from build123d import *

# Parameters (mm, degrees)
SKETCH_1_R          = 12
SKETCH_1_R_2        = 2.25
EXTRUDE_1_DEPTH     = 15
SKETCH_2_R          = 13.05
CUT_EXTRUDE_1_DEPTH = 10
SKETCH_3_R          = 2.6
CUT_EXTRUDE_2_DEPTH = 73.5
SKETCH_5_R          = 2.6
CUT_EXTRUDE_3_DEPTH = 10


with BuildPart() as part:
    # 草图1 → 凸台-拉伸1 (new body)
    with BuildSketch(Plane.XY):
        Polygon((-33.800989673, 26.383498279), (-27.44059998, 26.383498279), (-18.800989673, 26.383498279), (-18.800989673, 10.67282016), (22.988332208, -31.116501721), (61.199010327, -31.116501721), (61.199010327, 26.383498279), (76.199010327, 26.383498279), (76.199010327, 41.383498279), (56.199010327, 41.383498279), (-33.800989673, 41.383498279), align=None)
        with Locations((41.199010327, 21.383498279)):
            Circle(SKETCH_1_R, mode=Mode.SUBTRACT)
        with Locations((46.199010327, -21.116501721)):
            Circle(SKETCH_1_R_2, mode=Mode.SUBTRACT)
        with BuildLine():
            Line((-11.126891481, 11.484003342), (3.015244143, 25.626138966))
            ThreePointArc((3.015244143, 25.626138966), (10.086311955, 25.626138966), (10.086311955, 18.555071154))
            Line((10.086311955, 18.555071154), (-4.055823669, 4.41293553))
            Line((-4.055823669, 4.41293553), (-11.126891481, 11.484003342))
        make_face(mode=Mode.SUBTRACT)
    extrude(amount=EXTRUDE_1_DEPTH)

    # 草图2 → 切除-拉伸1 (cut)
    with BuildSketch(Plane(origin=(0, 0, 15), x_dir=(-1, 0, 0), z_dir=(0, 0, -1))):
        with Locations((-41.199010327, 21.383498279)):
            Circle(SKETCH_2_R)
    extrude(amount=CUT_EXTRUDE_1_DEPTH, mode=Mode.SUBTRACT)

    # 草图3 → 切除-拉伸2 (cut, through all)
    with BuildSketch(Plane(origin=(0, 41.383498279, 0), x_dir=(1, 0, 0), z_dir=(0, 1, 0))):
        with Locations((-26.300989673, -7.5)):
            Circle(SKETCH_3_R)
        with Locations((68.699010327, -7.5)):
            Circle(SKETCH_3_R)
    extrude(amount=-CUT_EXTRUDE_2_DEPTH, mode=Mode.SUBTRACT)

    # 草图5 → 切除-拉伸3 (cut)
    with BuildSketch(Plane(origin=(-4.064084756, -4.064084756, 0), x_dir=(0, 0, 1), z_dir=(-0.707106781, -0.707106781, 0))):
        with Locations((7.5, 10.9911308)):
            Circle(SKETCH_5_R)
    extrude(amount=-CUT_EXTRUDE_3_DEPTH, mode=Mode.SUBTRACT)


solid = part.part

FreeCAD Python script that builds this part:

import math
import FreeCAD as App
import Part
import Sketcher
from FreeCAD import Vector
Q = App.Units.Quantity


def add_polygon(sketch, points):
    """Adds a closed chain of lines whose ends are joined by coincident constraints."""
    first, n = sketch.GeometryCount, len(points)
    for a, b in zip(points, points[1:] + points[:1]):
        sketch.addGeometry(Part.LineSegment(App.Vector(*a, 0), App.Vector(*b, 0)), False)
    for i in range(n):
        sketch.addConstraint(Sketcher.Constraint("Coincident", first + i, 2, first + (i + 1) % n, 1))

doc = App.newDocument("Part")
body = doc.addObject("PartDesign::Body", "Body")

# Sketch on XY plane
sketch1 = doc.addObject("Sketcher::SketchObject", "Sketch")
body.addObject(sketch1)
sketch1.AttachmentSupport = (doc.XY_Plane, [""])
sketch1.MapMode = "FlatFace"
add_polygon(sketch1, [(-33.80099, 26.383498), (-18.80099, 26.383498), (-18.80099, 10.67282), (22.988332, -31.116502), (61.19901, -31.116502), (61.19901, 26.383498), (76.19901, 26.383498), (76.19901, 41.383498), (-33.80099, 41.383498)])  # lines 0-8
sketch1.addGeometry(Part.Circle(Vector(46.19901, -21.116502, 0), Vector(0, 0, 1), 2.25), False)  # 9
sketch1.addGeometry(Part.LineSegment(Vector(-4.055824, 4.412936, 0), Vector(-11.126891, 11.484003, 0)), False)  # 10
sketch1.addGeometry(Part.LineSegment(Vector(-11.126891, 11.484003, 0), Vector(3.015244, 25.626139, 0)), False)  # 11
sketch1.addGeometry(Part.ArcOfCircle(Part.Circle(Vector(6.550778, 22.090605, 0), Vector(0, 0, 1), 5), math.radians(-45), math.radians(135)), False)  # 12
sketch1.addGeometry(Part.LineSegment(Vector(10.086312, 18.555071, 0), Vector(-4.055824, 4.412936, 0)), False)  # 13
sketch1.addGeometry(Part.Circle(Vector(41.19901, 21.383498, 0), Vector(0, 0, 1), 12), False)  # 14
sketch1.addConstraint(Sketcher.Constraint("Coincident", 10, 2, 11, 1))
sketch1.addConstraint(Sketcher.Constraint("Tangent", 11, 2, 12, 2))
sketch1.addConstraint(Sketcher.Constraint("Tangent", 12, 1, 13, 1))
sketch1.addConstraint(Sketcher.Constraint("Coincident", 13, 2, 10, 1))
sketch1.addConstraint(Sketcher.Constraint("Horizontal", 0))
sketch1.addConstraint(Sketcher.Constraint("Vertical", 1))
sketch1.addConstraint(Sketcher.Constraint("Horizontal", 3))
sketch1.addConstraint(Sketcher.Constraint("Vertical", 4))
sketch1.addConstraint(Sketcher.Constraint("Horizontal", 5))
sketch1.addConstraint(Sketcher.Constraint("Vertical", 6))
sketch1.addConstraint(Sketcher.Constraint("Horizontal", 7))
sketch1.addConstraint(Sketcher.Constraint("Vertical", 8))
sketch1.addConstraint(Sketcher.Constraint("Parallel", 2, 10))
sketch1.addConstraint(Sketcher.Constraint("Perpendicular", 10, 11))
sketch1.addConstraint(Sketcher.Constraint("Parallel", 11, 13))
sketch1.addConstraint(Sketcher.Constraint("Horizontal", 0, 2, 4, 2))
sketch1.addConstraint(Sketcher.Constraint("Equal", 0, 5))
sketch1.addConstraint(Sketcher.Constraint("Equal", 5, 6))
sketch1.addConstraint(Sketcher.Constraint("Diameter", 14, 24.0))
sketch1.addConstraint(Sketcher.Constraint("Radius", 12, 5.0))
sketch1.addConstraint(Sketcher.Constraint("Diameter", 9, 4.5))
sketch1.addConstraint(Sketcher.Constraint("DistanceX", 0, 1, 0, 2, 15.0))
sketch1.addConstraint(Sketcher.Constraint("DistanceX", 7, 2, 7, 1, 110.0))
sketch1.addConstraint(Sketcher.Constraint("Angle", 2, Q("-45 deg")))
sketch1.addConstraint(Sketcher.Constraint("Distance", 11, 20.0))
sketch1.addConstraint(Sketcher.Constraint("DistanceY", 4, 1, 4, 2, 57.5))
sketch1.addConstraint(Sketcher.Constraint("DistanceX", 14, 3, 9, 3, 5.0))
sketch1.addConstraint(Sketcher.Constraint("DistanceX", 0, 2, 14, 3, 60.0))
sketch1.addConstraint(Sketcher.Constraint("DistanceY", 14, 3, 0, 2, 5.0))
sketch1.addConstraint(Sketcher.Constraint("DistanceY", 2, 2, 9, 3, 10.0))
sketch1.addConstraint(Sketcher.Constraint("DistanceX", 3, 1, 3, 2, 38.210678))
sketch1.addConstraint(Sketcher.Constraint("DistanceY", 9, 3, -1, 1, 21.116502))
sketch1.addConstraint(Sketcher.Constraint("DistanceX", 1, 2, 10, 2, 7.674098))
sketch1.addConstraint(Sketcher.Constraint("DistanceX", -1, 1, 9, 3, 46.19901))
sketch1.addConstraint(Sketcher.Constraint("DistanceY", -1, 1, 11, 2, 25.626139))
pad1 = doc.addObject("PartDesign::Pad", "Pad")
body.addObject(pad1)
pad1.Profile = sketch1
pad1.Length = 15

# Sketch on XY plane
sketch2 = doc.addObject("Sketcher::SketchObject", "Sketch001")
body.addObject(sketch2)
sketch2.AttachmentSupport = (doc.XY_Plane, [""])
sketch2.MapMode = "FlatFace"
sketch2.AttachmentOffset = App.Placement(Vector(0, 0, 15), App.Rotation())
sketch2.addGeometry(Part.Circle(Vector(41.19901, 21.383498, 0), Vector(0, 0, 1), 13.05), False)
sketch2.addConstraint(Sketcher.Constraint("Diameter", 0, 26.1))
sketch2.addConstraint(Sketcher.Constraint("DistanceY", -1, 1, 0, 3, 21.383498))
sketch2.addConstraint(Sketcher.Constraint("DistanceX", -1, 1, 0, 3, 41.19901))
pocket1 = doc.addObject("PartDesign::Pocket", "Pocket")
body.addObject(pocket1)
pocket1.Profile = sketch2
pocket1.Length = 10

# Sketch on XZ plane
sketch3 = doc.addObject("Sketcher::SketchObject", "Sketch002")
body.addObject(sketch3)
sketch3.AttachmentSupport = (doc.XZ_Plane, [""])
sketch3.MapMode = "FlatFace"
sketch3.AttachmentOffset = App.Placement(Vector(0, 0, -41.383498), App.Rotation())
sketch3.addGeometry(Part.Circle(Vector(-26.30099, 7.5, 0), Vector(0, 0, 1), 2.6), False)
sketch3.addGeometry(Part.Circle(Vector(68.69901, 7.5, 0), Vector(0, 0, 1), 2.6), False)
sketch3.addConstraint(Sketcher.Constraint("Equal", 0, 1))
sketch3.addConstraint(Sketcher.Constraint("Horizontal", 0, 3, 1, 3))
sketch3.addConstraint(Sketcher.Constraint("Diameter", 0, 5.2))
sketch3.addConstraint(Sketcher.Constraint("DistanceX", 0, 3, 1, 3, 95.0))
sketch3.addConstraint(Sketcher.Constraint("DistanceY", -1, 1, 0, 3, 7.5))
sketch3.addConstraint(Sketcher.Constraint("DistanceX", 0, 3, -1, 1, 26.30099))
pocket2 = doc.addObject("PartDesign::Pocket", "Pocket001")
body.addObject(pocket2)
pocket2.Profile = sketch3
pocket2.Type = "ThroughAll"
pocket2.Reversed = True

# Sketch on an angled plane
sketch4 = doc.addObject("Sketcher::SketchObject", "Sketch003")
body.addObject(sketch4)
sketch4.Placement = App.Placement(Vector(-4.064085, -4.064085, 0), App.Rotation(Vector(0, 0, 1), Vector(-0.707106781, 0.707106781, 0), Vector(-0.707106781, -0.707106781, 0), "ZXY"))
sketch4.addGeometry(Part.Circle(Vector(7.5, 10.991131, 0), Vector(0, 0, 1), 2.6), False)
sketch4.addConstraint(Sketcher.Constraint("Diameter", 0, 5.2))
sketch4.addConstraint(Sketcher.Constraint("DistanceX", -1, 1, 0, 3, 7.5))
sketch4.addConstraint(Sketcher.Constraint("DistanceY", -1, 1, 0, 3, 10.991131))
pocket3 = doc.addObject("PartDesign::Pocket", "Pocket002")
body.addObject(pocket3)
pocket3.Profile = sketch4
pocket3.Length = 10

doc.recompute()
